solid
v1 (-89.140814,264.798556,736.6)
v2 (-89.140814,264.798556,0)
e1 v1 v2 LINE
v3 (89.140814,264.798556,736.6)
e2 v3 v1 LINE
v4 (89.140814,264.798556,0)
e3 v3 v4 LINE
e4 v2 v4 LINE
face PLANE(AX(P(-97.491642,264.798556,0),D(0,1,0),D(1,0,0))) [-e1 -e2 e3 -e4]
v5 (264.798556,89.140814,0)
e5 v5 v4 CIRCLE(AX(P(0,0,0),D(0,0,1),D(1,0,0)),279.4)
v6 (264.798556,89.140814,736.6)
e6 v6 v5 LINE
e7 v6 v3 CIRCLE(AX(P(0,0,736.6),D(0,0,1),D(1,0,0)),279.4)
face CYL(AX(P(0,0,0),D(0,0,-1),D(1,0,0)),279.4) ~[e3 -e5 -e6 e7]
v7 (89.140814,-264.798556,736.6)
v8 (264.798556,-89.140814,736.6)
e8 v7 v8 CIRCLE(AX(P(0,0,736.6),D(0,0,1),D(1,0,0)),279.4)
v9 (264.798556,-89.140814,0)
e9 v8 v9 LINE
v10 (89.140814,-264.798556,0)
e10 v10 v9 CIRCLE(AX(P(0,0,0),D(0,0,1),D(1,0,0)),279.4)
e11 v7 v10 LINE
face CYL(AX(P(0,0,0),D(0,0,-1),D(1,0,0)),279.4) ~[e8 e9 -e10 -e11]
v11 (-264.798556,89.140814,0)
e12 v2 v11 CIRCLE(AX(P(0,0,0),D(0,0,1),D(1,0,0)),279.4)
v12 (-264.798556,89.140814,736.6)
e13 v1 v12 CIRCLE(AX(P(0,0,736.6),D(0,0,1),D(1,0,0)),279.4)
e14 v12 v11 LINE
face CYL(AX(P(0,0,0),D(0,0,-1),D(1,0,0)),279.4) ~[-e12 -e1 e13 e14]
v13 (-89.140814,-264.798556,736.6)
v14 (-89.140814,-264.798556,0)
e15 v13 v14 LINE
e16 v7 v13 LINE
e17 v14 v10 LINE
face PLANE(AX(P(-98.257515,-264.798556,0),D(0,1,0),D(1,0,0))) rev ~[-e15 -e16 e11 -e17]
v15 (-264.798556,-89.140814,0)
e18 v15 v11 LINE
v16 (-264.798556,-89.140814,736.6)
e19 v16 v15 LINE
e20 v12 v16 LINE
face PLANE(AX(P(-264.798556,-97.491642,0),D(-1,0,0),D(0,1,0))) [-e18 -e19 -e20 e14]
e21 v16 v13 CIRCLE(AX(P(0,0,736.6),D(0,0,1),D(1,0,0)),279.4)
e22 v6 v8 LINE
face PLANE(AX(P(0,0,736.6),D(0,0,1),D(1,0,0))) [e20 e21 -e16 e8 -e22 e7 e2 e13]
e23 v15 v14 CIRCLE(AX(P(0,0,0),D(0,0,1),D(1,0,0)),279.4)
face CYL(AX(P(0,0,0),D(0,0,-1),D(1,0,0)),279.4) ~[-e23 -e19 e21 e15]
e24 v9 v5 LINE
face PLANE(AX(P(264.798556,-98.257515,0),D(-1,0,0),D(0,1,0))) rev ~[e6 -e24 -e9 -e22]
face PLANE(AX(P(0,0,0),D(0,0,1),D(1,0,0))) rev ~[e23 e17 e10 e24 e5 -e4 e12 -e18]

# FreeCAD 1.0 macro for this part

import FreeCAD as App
import Part
import Sketcher
from FreeCAD import Vector
Q = App.Units.Quantity

doc = App.newDocument("Part")
body = doc.addObject("PartDesign::Body", "Body")

# Sketch on XY plane
sketch1 = doc.addObject("Sketcher::SketchObject", "Sketch")
body.addObject(sketch1)
sketch1.AttachmentSupport = (doc.XY_Plane, [""])
sketch1.MapMode = "FlatFace"
sketch1.addGeometry(Part.Circle(Vector(0, 0, 0), Vector(0, 0, 1), 279.4), False)
sketch1.addConstraint([
    Sketcher.Constraint("Coincident", 0, 3, -1, 1),
    Sketcher.Constraint("Diameter", 0, Q("22 in")),
])
pad1 = doc.addObject("PartDesign::Pad", "Pad")
body.addObject(pad1)
pad1.Profile = sketch1
pad1.Length = Q("29 in")

# Sketch on XY plane
sketch2 = doc.addObject("Sketcher::SketchObject", "Sketch001")
body.addObject(sketch2)
sketch2.AttachmentSupport = (doc.XY_Plane, [""])
sketch2.MapMode = "FlatFace"
sketch2.addGeometry([
    Part.LineSegment(Vector(-97.491642, 290.198556, 0), Vector(-97.491642, 264.798556, 0)),  # 0
    Part.LineSegment(Vector(-97.491642, 264.798556, 0), Vector(98.257515, 264.798556, 0)),  # 1
    Part.LineSegment(Vector(98.257515, 264.798556, 0), Vector(98.257515, 290.198556, 0)),  # 2
    Part.LineSegment(Vector(98.257515, 290.198556, 0), Vector(-97.491642, 290.198556, 0)),  # 3
    Part.LineSegment(Vector(-290.198556, 98.257515, 0), Vector(-290.198556, -97.491642, 0)),  # 4
    Part.LineSegment(Vector(-290.198556, -97.491642, 0), Vector(-264.798556, -97.491642, 0)),  # 5
    Part.LineSegment(Vector(-264.798556, -97.491642, 0), Vector(-264.798556, 98.257515, 0)),  # 6
    Part.LineSegment(Vector(-264.798556, 98.257515, 0), Vector(-290.198556, 98.257515, 0)),  # 7
    Part.LineSegment(Vector(-98.257515, -264.798556, 0), Vector(-98.257515, -290.198556, 0)),  # 8
    Part.LineSegment(Vector(-98.257515, -290.198556, 0), Vector(97.491642, -290.198556, 0)),  # 9
    Part.LineSegment(Vector(97.491642, -290.198556, 0), Vector(97.491642, -264.798556, 0)),  # 10
    Part.LineSegment(Vector(97.491642, -264.798556, 0), Vector(-98.257515, -264.798556, 0)),  # 11
    Part.LineSegment(Vector(264.798556, 97.491642, 0), Vector(264.798556, -98.257515, 0)),  # 12
    Part.LineSegment(Vector(264.798556, -98.257515, 0), Vector(290.198556, -98.257515, 0)),  # 13
    Part.LineSegment(Vector(290.198556, -98.257515, 0), Vector(290.198556, 97.491642, 0)),  # 14
    Part.LineSegment(Vector(290.198556, 97.491642, 0), Vector(264.798556, 97.491642, 0)),  # 15
], False)
sketch2.addConstraint([
    Sketcher.Constraint("Coincident", 0, 2, 1, 1),
    Sketcher.Constraint("Coincident", 1, 2, 2, 1),
    Sketcher.Constraint("Coincident", 2, 2, 3, 1),
    Sketcher.Constraint("Coincident", 3, 2, 0, 1),
    Sketcher.Constraint("Coincident", 4, 2, 5, 1),
    Sketcher.Constraint("Coincident", 5, 2, 6, 1),
    Sketcher.Constraint("Coincident", 6, 2, 7, 1),
    Sketcher.Constraint("Coincident", 7, 2, 4, 1),
    Sketcher.Constraint("Coincident", 8, 2, 9, 1),
    Sketcher.Constraint("Coincident", 9, 2, 10, 1),
    Sketcher.Constraint("Coincident", 10, 2, 11, 1),
    Sketcher.Constraint("Coincident", 11, 2, 8, 1),
    Sketcher.Constraint("Coincident", 12, 2, 13, 1),
    Sketcher.Constraint("Coincident", 13, 2, 14, 1),
    Sketcher.Constraint("Coincident", 14, 2, 15, 1),
    Sketcher.Constraint("Coincident", 15, 2, 12, 1),
    Sketcher.Constraint("Vertical", 0),
    Sketcher.Constraint("Horizontal", 1),
    Sketcher.Constraint("Vertical", 2),
    Sketcher.Constraint("Horizontal", 3),
    Sketcher.Constraint("Vertical", 4),
    Sketcher.Constraint("Horizontal", 5),
    Sketcher.Constraint("Vertical", 6),
    Sketcher.Constraint("Horizontal", 7),
    Sketcher.Constraint("Vertical", 8),
    Sketcher.Constraint("Horizontal", 9),
    Sketcher.Constraint("Vertical", 10),
    Sketcher.Constraint("Horizontal", 11),
    Sketcher.Constraint("Vertical", 12),
    Sketcher.Constraint("Horizontal", 13),
    Sketcher.Constraint("Vertical", 14),
    Sketcher.Constraint("Horizontal", 15),
    Sketcher.Constraint("Symmetric", 2, 2, 8, 2, -1, 1),
    Sketcher.Constraint("Symmetric", 0, 2, 10, 2, -1, 1),
    Sketcher.Constraint("Symmetric", 6, 2, 12, 2, -1, 1),
    Sketcher.Constraint("Symmetric", 4, 2, 14, 2, -1, 1),
    Sketcher.Constraint("Equal", 15, 0),
    Sketcher.Constraint("Equal", 11, 4),
    Sketcher.Constraint("DistanceX", 5, 1, 5, 2, Q("1 in")),
    Sketcher.Constraint("DistanceX", 1, 1, 1, 2, Q("195.749157 mm")),
    Sketcher.Constraint("DistanceX", 0, 2, -1, 1, Q("97.491642 mm")),
    Sketcher.Constraint("DistanceY", 4, 2, -1, 1, Q("97.491642 mm")),
    Sketcher.Constraint("DistanceX", 4, 2, 1, 2, Q("388.456072 mm")),
    Sketcher.Constraint("DistanceY", 6, 2, 0, 2, Q("166.541041 mm")),
])
pocket1 = doc.addObject("PartDesign::Pocket", "Pocket")
body.addObject(pocket1)
pocket1.Profile = sketch2
pocket1.Length = Q("39.8 in")
pocket1.Reversed = True

doc.recompute()
